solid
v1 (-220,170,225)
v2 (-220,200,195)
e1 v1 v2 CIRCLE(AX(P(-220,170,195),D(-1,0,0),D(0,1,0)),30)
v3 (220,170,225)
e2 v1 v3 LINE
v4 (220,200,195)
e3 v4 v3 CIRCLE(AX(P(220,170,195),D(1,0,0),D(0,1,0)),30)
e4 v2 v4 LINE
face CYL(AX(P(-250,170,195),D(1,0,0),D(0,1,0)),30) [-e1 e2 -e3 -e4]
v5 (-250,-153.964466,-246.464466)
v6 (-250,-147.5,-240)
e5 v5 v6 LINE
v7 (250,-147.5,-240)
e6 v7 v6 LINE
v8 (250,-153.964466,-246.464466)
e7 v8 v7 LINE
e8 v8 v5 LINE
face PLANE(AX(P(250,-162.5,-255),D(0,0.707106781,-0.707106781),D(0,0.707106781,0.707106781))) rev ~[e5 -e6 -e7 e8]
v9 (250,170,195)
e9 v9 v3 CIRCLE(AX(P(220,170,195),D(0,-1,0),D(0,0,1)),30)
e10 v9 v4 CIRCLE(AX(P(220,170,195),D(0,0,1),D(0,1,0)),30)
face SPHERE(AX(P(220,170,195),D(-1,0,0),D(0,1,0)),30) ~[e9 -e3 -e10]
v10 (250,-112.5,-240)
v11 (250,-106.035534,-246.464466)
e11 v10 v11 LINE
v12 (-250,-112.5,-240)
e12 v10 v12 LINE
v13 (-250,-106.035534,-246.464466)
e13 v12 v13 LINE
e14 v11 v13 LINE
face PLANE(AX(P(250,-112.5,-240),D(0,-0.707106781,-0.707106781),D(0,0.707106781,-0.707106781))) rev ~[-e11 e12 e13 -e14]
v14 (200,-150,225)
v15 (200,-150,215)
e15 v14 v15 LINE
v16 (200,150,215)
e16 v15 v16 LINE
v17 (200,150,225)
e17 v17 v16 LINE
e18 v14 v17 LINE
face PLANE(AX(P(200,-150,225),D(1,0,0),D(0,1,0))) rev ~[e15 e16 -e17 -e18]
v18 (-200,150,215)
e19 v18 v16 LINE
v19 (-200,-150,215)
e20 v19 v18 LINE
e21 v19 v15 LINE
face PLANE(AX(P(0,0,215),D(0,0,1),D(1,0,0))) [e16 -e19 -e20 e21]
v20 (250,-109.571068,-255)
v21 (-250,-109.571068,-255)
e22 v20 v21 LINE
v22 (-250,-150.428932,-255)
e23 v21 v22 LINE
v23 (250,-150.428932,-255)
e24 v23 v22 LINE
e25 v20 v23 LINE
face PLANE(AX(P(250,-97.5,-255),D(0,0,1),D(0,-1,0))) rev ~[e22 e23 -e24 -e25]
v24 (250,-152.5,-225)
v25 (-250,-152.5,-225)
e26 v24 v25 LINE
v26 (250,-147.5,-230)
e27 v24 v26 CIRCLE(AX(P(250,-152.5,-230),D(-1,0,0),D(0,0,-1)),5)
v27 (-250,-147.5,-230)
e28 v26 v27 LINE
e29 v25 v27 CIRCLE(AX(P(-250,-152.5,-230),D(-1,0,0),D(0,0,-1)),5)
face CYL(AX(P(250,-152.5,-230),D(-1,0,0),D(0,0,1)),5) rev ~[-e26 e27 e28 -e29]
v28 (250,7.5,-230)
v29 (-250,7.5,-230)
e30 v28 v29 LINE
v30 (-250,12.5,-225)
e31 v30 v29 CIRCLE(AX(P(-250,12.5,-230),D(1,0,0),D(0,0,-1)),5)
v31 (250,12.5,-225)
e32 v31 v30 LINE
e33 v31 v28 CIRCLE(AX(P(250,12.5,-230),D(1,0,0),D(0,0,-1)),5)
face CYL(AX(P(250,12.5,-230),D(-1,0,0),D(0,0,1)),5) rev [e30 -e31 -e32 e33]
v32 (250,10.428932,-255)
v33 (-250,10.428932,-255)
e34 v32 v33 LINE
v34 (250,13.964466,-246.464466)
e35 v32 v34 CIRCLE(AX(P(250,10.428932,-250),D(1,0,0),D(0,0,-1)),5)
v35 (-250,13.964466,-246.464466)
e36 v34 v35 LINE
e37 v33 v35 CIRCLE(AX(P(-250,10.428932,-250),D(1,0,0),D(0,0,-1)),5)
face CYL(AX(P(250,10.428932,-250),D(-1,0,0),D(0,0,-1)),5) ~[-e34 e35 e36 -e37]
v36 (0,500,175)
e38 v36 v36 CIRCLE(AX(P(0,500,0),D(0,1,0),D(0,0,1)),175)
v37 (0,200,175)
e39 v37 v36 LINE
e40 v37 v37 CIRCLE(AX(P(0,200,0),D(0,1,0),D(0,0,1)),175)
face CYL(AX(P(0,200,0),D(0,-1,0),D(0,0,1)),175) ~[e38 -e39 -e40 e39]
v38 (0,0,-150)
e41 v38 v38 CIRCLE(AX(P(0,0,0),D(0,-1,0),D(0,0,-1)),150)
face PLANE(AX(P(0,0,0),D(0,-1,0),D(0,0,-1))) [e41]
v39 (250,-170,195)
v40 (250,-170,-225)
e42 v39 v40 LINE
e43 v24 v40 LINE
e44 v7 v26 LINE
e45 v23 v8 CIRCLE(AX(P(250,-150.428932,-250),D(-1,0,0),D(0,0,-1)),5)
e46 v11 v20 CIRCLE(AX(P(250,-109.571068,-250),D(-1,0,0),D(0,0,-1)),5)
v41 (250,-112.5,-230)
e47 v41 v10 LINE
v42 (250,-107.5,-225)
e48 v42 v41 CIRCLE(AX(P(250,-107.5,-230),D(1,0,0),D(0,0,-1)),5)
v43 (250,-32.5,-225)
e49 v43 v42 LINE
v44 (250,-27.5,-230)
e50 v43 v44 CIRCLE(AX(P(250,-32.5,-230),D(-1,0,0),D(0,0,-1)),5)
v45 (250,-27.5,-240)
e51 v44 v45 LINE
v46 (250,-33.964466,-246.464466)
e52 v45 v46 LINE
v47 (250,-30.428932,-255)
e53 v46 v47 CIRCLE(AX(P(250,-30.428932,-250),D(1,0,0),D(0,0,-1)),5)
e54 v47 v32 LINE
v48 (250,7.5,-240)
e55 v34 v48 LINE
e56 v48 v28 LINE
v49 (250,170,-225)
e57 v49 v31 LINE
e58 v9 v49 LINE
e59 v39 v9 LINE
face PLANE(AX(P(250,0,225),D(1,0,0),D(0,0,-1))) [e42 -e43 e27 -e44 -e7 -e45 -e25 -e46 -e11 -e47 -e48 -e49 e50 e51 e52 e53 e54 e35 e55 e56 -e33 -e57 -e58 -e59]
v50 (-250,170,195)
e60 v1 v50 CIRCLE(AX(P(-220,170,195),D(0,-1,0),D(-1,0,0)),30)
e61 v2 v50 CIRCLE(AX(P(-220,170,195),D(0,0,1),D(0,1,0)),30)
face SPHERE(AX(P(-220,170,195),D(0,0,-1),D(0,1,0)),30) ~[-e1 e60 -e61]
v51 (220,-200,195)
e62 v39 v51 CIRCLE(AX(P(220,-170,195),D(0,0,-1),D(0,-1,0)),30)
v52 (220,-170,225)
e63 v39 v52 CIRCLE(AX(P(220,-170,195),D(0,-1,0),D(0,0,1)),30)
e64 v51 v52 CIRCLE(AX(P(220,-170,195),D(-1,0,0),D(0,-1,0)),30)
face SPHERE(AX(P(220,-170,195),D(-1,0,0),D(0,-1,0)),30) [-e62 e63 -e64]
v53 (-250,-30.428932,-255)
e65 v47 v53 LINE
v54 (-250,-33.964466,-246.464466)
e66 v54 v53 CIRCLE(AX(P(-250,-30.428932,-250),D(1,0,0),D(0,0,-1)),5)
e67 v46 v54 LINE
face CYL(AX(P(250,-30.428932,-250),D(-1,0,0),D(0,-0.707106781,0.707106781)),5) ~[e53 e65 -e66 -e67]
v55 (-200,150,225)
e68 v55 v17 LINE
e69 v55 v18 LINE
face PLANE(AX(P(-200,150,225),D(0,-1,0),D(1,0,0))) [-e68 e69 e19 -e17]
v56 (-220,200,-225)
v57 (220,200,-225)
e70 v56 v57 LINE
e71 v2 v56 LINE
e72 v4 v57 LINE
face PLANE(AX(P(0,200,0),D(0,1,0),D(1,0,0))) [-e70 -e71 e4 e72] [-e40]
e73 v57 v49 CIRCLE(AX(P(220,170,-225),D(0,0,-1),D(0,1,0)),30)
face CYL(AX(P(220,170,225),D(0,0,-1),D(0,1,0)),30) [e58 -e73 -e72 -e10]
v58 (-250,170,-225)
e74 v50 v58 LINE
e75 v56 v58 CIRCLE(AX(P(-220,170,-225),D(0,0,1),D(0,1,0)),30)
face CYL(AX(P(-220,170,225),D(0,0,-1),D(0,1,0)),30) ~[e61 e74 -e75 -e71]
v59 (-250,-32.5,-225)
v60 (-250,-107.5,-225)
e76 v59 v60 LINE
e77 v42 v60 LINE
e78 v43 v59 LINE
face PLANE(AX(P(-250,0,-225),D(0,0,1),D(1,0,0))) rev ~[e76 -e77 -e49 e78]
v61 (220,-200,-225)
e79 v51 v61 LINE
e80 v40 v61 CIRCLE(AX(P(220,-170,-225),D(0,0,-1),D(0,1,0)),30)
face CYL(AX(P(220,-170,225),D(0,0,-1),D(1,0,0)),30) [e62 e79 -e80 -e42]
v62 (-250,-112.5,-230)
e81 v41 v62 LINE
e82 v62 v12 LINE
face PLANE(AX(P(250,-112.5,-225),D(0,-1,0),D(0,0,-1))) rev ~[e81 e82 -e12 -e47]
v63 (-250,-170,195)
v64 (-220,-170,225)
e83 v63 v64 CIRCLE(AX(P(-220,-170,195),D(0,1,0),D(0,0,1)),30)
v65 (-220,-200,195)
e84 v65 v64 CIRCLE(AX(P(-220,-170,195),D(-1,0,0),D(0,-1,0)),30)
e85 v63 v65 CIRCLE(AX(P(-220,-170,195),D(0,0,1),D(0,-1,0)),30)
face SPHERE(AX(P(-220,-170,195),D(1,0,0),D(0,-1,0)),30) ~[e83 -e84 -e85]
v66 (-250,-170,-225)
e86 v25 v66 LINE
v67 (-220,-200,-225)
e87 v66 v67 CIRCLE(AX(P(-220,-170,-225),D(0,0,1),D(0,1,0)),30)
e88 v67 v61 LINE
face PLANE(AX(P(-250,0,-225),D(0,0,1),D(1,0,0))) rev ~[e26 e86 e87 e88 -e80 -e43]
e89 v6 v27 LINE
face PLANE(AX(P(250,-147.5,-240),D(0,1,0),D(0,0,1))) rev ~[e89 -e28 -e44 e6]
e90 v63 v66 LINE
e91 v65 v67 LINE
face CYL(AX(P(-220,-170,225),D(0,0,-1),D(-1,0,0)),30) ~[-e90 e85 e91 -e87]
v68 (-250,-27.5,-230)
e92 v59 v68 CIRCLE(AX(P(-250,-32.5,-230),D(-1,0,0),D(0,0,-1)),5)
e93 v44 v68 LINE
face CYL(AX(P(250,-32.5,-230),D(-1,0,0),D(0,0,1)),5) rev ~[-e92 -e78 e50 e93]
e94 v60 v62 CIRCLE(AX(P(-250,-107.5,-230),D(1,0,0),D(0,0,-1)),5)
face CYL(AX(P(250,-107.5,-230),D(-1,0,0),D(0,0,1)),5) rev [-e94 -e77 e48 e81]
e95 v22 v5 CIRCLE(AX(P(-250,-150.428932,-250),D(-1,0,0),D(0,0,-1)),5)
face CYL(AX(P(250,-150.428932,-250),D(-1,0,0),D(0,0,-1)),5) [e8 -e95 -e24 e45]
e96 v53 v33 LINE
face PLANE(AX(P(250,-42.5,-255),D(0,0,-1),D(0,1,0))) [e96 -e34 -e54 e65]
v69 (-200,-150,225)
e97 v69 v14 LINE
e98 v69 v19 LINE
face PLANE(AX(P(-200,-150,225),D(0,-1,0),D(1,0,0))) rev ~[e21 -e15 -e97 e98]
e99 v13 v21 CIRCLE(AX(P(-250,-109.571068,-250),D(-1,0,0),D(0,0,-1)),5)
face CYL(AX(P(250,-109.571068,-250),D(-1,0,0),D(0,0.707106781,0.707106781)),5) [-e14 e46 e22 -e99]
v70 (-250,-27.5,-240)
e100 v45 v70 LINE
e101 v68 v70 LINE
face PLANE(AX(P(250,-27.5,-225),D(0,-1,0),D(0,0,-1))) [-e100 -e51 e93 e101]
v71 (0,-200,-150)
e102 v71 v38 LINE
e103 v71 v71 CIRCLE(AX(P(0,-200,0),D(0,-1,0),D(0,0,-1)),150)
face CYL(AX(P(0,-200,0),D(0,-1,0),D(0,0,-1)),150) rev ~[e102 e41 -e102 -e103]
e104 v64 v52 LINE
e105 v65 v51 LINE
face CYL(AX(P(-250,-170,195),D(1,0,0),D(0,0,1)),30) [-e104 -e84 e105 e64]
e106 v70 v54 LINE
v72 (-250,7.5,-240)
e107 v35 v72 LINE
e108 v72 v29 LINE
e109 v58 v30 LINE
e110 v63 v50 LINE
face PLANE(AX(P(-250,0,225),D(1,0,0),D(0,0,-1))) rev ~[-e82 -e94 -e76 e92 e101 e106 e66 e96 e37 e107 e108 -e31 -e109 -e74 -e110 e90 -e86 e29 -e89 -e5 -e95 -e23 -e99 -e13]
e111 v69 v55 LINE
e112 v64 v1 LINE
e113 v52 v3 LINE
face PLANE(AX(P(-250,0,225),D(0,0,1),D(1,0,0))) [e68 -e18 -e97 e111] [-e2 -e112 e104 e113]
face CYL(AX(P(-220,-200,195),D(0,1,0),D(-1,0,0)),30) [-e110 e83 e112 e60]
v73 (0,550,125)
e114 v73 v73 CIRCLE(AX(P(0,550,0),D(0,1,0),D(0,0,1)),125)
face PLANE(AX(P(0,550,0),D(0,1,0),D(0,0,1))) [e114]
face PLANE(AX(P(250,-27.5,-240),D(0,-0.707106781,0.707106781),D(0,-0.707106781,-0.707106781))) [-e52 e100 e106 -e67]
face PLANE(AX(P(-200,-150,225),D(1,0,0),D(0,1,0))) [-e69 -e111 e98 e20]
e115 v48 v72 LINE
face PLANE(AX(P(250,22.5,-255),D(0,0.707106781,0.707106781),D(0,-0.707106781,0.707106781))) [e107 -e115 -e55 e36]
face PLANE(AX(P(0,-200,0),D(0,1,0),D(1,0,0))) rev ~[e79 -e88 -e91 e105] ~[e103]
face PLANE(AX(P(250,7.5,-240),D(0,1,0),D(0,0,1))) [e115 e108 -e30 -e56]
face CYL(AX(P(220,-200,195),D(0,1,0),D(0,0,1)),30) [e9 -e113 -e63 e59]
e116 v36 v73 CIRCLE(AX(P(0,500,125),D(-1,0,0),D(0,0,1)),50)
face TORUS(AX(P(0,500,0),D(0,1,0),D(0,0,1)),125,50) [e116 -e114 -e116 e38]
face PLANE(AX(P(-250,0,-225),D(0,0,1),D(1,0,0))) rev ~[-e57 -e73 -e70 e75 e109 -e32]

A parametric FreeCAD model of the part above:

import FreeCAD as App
import Part
import Sketcher
from FreeCAD import Vector
Q = App.Units.Quantity


def edges_at(feature, points):
    """Names of the edges that pass closest to the given points."""
    edges = feature.Shape.Edges
    near = lambda p: min(range(len(edges)), key=lambda i: edges[i].distToShape(Part.Vertex(*p))[0])
    return sorted({f"Edge{near(p) + 1}" for p in points})


def add_polygon(sketch, points):
    """Adds a closed chain of lines whose ends are joined by coincident constraints."""
    first, n = sketch.GeometryCount, len(points)
    for a, b in zip(points, points[1:] + points[:1]):
        sketch.addGeometry(Part.LineSegment(App.Vector(*a, 0), App.Vector(*b, 0)), False)
    for i in range(n):
        sketch.addConstraint(Sketcher.Constraint("Coincident", first + i, 2, first + (i + 1) % n, 1))

doc = App.newDocument("Part")
body = doc.addObject("PartDesign::Body", "Body")

# Sketch on XZ plane
sketch1 = body.newObject("Sketcher::SketchObject", "Sketch")
sketch1.AttachmentSupport = (doc.getObject("XZ_Plane"), [""])
sketch1.MapMode = "FlatFace"
add_polygon(sketch1, [(-250, -225), (-250, 225), (250, 225), (250, -225)])  # lines 0-3
sketch1.addConstraint([
    Sketcher.Constraint("Vertical", 0),
    Sketcher.Constraint("Horizontal", 1),
    Sketcher.Constraint("Vertical", 2),
    Sketcher.Constraint("Horizontal", 3),
    Sketcher.Constraint("Symmetric", 0, 2, 2, 2, -1, 1),
    Sketcher.Constraint("DistanceX", 1, 1, 1, 2, Q("500 mm")),
    Sketcher.Constraint("DistanceY", 0, 1, 0, 2, Q("450 mm")),
])
pad1 = body.newObject("PartDesign::Pad", "Pad")
pad1.Profile = sketch1
pad1.Length = 400
pad1.Midplane = True

# Sketch on YZ plane
sketch2 = body.newObject("Sketcher::SketchObject", "Sketch001")
sketch2.AttachmentSupport = (doc.getObject("YZ_Plane"), [""])
sketch2.MapMode = "FlatFace"
sketch2.AttachmentOffset = App.Placement(Vector(0, 0, 250), App.Rotation())
add_polygon(sketch2, [(-28, -240), (-42, -255), (22, -255), (8, -240), (8, -225), (-28, -225)])  # lines 0-5
add_polygon(sketch2, [(-112, -225), (-148, -225), (-148, -240), (-162, -255), (-98, -255), (-112, -240)])  # lines 6-11
sketch2.addConstraint([
    Sketcher.Constraint("Horizontal", 1),
    Sketcher.Constraint("Vertical", 3),
    Sketcher.Constraint("Horizontal", 4),
    Sketcher.Constraint("Vertical", 5),
    Sketcher.Constraint("Horizontal", 6),
    Sketcher.Constraint("Vertical", 7),
    Sketcher.Constraint("Horizontal", 9),
    Sketcher.Constraint("Vertical", 11),
    Sketcher.Constraint("Perpendicular", 0, 2),
    Sketcher.Constraint("Perpendicular", 2, 8),
    Sketcher.Constraint("Perpendicular", 8, 10),
    Sketcher.Constraint("Horizontal", 2, 2, 5, 2),
    Sketcher.Constraint("Horizontal", 4, 2, 6, 2),
    Sketcher.Constraint("Horizontal", 5, 2, 7, 2),
    Sketcher.Constraint("Horizontal", 1, 2, 8, 2),
    Sketcher.Constraint("Horizontal", 7, 2, 10, 2),
    Sketcher.Constraint("Equal", 4, 6),
    Sketcher.Constraint("Equal", 0, 2),
    Sketcher.Constraint("DistanceX", 1, 1, 1, 2, Q("65 mm")),
    Sketcher.Constraint("DistanceX", 4, 2, 4, 1, Q("35 mm")),
    Sketcher.Constraint("DistanceY", 3, 1, 3, 2, Q("15 mm")),
    Sketcher.Constraint("DistanceY", 0, 2, -1, 1, Q("255 mm")),
    Sketcher.Constraint("DistanceX", 6, 2, 0, 2, Q("105 mm")),
    Sketcher.Constraint("DistanceX", 0, 2, -1, 1, Q("42.5 mm")),
])
pad2 = body.newObject("PartDesign::Pad", "Pad001")
pad2.Profile = sketch2
pad2.Length = 500
pad2.Reversed = True
doc.recompute()

fillet = body.newObject("PartDesign::Fillet", "Fillet")
fillet.Base = (pad2, edges_at(pad2, [
    (0, -147.5, -225),
    (0, -112.5, -225),
    (0, -97.5, -255),
    (0, -162.5, -255),
    (0, -27.5, -225),
    (0, 7.5, -225),
    (0, 22.5, -255),
    (0, -42.5, -255),
]))
fillet.Radius = 5

# Sketch on XZ plane
sketch3 = body.newObject("Sketcher::SketchObject", "Sketch002")
sketch3.AttachmentSupport = (doc.getObject("XZ_Plane"), [""])
sketch3.MapMode = "FlatFace"
sketch3.AttachmentOffset = App.Placement(Vector(0, 0, 200), App.Rotation())
sketch3.addGeometry(Part.Circle(Vector(0, 0, 0), Vector(0, 0, 1), 150), False)
sketch3.addConstraint([
    Sketcher.Constraint("Coincident", 0, 3, -1, 1),
    Sketcher.Constraint("Diameter", 0, Q("300 mm")),
])
pocket1 = body.newObject("PartDesign::Pocket", "Pocket")
pocket1.Profile = sketch3
pocket1.Length = 200

# Sketch on XZ plane
sketch4 = body.newObject("Sketcher::SketchObject", "Sketch003")
sketch4.AttachmentSupport = (doc.getObject("XZ_Plane"), [""])
sketch4.MapMode = "FlatFace"
sketch4.AttachmentOffset = App.Placement(Vector(0, 0, -200), App.Rotation())
sketch4.addGeometry(Part.Circle(Vector(0, 0, 0), Vector(0, 0, 1), 175), False)
sketch4.addConstraint([
    Sketcher.Constraint("Coincident", 0, 3, -1, 1),
    Sketcher.Constraint("Diameter", 0, Q("350 mm")),
])
pad3 = body.newObject("PartDesign::Pad", "Pad002")
pad3.Profile = sketch4
pad3.Length = 350
pad3.Reversed = True
doc.recompute()

fillet2 = body.newObject("PartDesign::Fillet", "Fillet001")
fillet2.Base = (pad3, edges_at(pad3, [(0, 550, -175)]))
fillet2.Radius = 50
doc.recompute()

fillet3 = body.newObject("PartDesign::Fillet", "Fillet002")
fillet3.Base = (fillet2, edges_at(fillet2, [
    (-250, 200, 0),
    (0, 200, 225),
    (250, 200, 0),
    (0, -200, 225),
    (-250, -200, 0),
    (250, -200, 0),
    (250, 0, 225),
    (-250, 0, 225),
]))
fillet3.Radius = 30

# Sketch on XY plane
sketch5 = body.newObject("Sketcher::SketchObject", "Sketch004")
sketch5.AttachmentSupport = (doc.getObject("XY_Plane"), [""])
sketch5.MapMode = "FlatFace"
sketch5.AttachmentOffset = App.Placement(Vector(0, 0, 225), App.Rotation())
add_polygon(sketch5, [(-200, 150), (-200, -150), (200, -150), (200, 150)])  # lines 0-3
sketch5.addConstraint([
    Sketcher.Constraint("Vertical", 0),
    Sketcher.Constraint("Horizontal", 1),
    Sketcher.Constraint("Vertical", 2),
    Sketcher.Constraint("Horizontal", 3),
    Sketcher.Constraint("Symmetric", 0, 2, 2, 2, -1, 1),
    Sketcher.Constraint("DistanceX", 1, 1, 1, 2, Q("400 mm")),
    Sketcher.Constraint("DistanceY", 0, 2, 0, 1, Q("300 mm")),
])
pocket2 = body.newObject("PartDesign::Pocket", "Pocket001")
pocket2.Profile = sketch5
pocket2.Length = 10

doc.recompute()
